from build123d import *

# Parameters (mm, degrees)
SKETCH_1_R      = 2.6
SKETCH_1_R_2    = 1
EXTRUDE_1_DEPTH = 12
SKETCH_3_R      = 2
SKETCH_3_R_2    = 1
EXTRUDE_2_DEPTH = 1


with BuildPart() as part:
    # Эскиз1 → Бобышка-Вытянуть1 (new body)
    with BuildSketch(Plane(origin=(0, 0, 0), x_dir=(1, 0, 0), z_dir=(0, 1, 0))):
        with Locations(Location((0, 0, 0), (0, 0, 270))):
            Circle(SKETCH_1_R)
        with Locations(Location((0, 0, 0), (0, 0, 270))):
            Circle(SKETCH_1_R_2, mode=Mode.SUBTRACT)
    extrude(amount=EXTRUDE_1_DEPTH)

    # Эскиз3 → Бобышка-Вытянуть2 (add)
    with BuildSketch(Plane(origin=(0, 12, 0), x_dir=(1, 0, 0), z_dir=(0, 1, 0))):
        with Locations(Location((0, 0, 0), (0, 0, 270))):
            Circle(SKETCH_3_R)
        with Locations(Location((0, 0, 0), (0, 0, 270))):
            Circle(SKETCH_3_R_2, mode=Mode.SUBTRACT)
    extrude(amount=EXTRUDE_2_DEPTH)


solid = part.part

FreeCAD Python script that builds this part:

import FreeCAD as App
import Part
import Sketcher
Q = App.Units.Quantity

doc = App.newDocument("Part")
params = doc.addObject("Spreadsheet::Sheet", "Params")
for row, (alias, value) in enumerate([
    ("sketch1_diameter", "2 mm"),
    ("sketch1_diameter2", "5.2 mm"),
    ("pad1_length", "12 mm"),
    ("sketch2_diameter", "4 mm"),
    ("sketch2_diameter2", "2 mm"),
    ("pad2_length", "1 mm"),
], start=1):
    params.set(f"A{row}", alias)
    params.set(f"B{row}", "=" + value)
    params.setAlias(f"B{row}", alias)

body = doc.addObject("PartDesign::Body", "Body")

sketch1 = doc.addObject("Sketcher::SketchObject", "Sketch")
body.addObject(sketch1)
sketch1.AttachmentSupport = (doc.XZ_Plane, [""])
sketch1.MapMode = "FlatFace"
sketch1.addGeometry([
    Part.Circle(App.Vector(0, 0, 0), App.Vector(0, 0, 1), 2.6),
    Part.Circle(App.Vector(0, 0, 0), App.Vector(0, 0, 1), 1),
], False)
sketch1.addConstraint([
    Sketcher.Constraint("Coincident", 0, 3, -1, 1),
    Sketcher.Constraint("Coincident", 1, 3, -1, 1),
    Sketcher.Constraint("Diameter", 1, Q("2 mm")),
    Sketcher.Constraint("Diameter", 0, Q("5.2 mm")),
])
sketch1.setExpression("Constraints[2]", "Params.sketch1_diameter")
sketch1.setExpression("Constraints[3]", "Params.sketch1_diameter2")
pad1 = doc.addObject("PartDesign::Pad", "Pad")
body.addObject(pad1)
pad1.Profile = sketch1
pad1.setExpression("Length", "Params.pad1_length")
pad1.Reversed = True

sketch2 = doc.addObject("Sketcher::SketchObject", "Sketch001")
body.addObject(sketch2)
sketch2.AttachmentSupport = (doc.XZ_Plane, [""])
sketch2.MapMode = "FlatFace"
sketch2.AttachmentOffset = App.Placement(App.Vector(0, 0, -12), App.Rotation())
sketch2.addGeometry([
    Part.Circle(App.Vector(0, 0, 0), App.Vector(0, 0, 1), 2),
    Part.Circle(App.Vector(0, 0, 0), App.Vector(0, 0, 1), 1),
], False)
sketch2.addConstraint([
    Sketcher.Constraint("Coincident", 0, 3, -1, 1),
    Sketcher.Constraint("Coincident", 1, 3, -1, 1),
    Sketcher.Constraint("Diameter", 0, Q("4 mm")),
    Sketcher.Constraint("Diameter", 1, Q("2 mm")),
])
sketch2.setExpression("Constraints[2]", "Params.sketch2_diameter")
sketch2.setExpression("Constraints[3]", "Params.sketch2_diameter2")
pad2 = doc.addObject("PartDesign::Pad", "Pad001")
body.addObject(pad2)
pad2.Profile = sketch2
pad2.setExpression("Length", "Params.pad2_length")
pad2.Reversed = True

doc.recompute()
